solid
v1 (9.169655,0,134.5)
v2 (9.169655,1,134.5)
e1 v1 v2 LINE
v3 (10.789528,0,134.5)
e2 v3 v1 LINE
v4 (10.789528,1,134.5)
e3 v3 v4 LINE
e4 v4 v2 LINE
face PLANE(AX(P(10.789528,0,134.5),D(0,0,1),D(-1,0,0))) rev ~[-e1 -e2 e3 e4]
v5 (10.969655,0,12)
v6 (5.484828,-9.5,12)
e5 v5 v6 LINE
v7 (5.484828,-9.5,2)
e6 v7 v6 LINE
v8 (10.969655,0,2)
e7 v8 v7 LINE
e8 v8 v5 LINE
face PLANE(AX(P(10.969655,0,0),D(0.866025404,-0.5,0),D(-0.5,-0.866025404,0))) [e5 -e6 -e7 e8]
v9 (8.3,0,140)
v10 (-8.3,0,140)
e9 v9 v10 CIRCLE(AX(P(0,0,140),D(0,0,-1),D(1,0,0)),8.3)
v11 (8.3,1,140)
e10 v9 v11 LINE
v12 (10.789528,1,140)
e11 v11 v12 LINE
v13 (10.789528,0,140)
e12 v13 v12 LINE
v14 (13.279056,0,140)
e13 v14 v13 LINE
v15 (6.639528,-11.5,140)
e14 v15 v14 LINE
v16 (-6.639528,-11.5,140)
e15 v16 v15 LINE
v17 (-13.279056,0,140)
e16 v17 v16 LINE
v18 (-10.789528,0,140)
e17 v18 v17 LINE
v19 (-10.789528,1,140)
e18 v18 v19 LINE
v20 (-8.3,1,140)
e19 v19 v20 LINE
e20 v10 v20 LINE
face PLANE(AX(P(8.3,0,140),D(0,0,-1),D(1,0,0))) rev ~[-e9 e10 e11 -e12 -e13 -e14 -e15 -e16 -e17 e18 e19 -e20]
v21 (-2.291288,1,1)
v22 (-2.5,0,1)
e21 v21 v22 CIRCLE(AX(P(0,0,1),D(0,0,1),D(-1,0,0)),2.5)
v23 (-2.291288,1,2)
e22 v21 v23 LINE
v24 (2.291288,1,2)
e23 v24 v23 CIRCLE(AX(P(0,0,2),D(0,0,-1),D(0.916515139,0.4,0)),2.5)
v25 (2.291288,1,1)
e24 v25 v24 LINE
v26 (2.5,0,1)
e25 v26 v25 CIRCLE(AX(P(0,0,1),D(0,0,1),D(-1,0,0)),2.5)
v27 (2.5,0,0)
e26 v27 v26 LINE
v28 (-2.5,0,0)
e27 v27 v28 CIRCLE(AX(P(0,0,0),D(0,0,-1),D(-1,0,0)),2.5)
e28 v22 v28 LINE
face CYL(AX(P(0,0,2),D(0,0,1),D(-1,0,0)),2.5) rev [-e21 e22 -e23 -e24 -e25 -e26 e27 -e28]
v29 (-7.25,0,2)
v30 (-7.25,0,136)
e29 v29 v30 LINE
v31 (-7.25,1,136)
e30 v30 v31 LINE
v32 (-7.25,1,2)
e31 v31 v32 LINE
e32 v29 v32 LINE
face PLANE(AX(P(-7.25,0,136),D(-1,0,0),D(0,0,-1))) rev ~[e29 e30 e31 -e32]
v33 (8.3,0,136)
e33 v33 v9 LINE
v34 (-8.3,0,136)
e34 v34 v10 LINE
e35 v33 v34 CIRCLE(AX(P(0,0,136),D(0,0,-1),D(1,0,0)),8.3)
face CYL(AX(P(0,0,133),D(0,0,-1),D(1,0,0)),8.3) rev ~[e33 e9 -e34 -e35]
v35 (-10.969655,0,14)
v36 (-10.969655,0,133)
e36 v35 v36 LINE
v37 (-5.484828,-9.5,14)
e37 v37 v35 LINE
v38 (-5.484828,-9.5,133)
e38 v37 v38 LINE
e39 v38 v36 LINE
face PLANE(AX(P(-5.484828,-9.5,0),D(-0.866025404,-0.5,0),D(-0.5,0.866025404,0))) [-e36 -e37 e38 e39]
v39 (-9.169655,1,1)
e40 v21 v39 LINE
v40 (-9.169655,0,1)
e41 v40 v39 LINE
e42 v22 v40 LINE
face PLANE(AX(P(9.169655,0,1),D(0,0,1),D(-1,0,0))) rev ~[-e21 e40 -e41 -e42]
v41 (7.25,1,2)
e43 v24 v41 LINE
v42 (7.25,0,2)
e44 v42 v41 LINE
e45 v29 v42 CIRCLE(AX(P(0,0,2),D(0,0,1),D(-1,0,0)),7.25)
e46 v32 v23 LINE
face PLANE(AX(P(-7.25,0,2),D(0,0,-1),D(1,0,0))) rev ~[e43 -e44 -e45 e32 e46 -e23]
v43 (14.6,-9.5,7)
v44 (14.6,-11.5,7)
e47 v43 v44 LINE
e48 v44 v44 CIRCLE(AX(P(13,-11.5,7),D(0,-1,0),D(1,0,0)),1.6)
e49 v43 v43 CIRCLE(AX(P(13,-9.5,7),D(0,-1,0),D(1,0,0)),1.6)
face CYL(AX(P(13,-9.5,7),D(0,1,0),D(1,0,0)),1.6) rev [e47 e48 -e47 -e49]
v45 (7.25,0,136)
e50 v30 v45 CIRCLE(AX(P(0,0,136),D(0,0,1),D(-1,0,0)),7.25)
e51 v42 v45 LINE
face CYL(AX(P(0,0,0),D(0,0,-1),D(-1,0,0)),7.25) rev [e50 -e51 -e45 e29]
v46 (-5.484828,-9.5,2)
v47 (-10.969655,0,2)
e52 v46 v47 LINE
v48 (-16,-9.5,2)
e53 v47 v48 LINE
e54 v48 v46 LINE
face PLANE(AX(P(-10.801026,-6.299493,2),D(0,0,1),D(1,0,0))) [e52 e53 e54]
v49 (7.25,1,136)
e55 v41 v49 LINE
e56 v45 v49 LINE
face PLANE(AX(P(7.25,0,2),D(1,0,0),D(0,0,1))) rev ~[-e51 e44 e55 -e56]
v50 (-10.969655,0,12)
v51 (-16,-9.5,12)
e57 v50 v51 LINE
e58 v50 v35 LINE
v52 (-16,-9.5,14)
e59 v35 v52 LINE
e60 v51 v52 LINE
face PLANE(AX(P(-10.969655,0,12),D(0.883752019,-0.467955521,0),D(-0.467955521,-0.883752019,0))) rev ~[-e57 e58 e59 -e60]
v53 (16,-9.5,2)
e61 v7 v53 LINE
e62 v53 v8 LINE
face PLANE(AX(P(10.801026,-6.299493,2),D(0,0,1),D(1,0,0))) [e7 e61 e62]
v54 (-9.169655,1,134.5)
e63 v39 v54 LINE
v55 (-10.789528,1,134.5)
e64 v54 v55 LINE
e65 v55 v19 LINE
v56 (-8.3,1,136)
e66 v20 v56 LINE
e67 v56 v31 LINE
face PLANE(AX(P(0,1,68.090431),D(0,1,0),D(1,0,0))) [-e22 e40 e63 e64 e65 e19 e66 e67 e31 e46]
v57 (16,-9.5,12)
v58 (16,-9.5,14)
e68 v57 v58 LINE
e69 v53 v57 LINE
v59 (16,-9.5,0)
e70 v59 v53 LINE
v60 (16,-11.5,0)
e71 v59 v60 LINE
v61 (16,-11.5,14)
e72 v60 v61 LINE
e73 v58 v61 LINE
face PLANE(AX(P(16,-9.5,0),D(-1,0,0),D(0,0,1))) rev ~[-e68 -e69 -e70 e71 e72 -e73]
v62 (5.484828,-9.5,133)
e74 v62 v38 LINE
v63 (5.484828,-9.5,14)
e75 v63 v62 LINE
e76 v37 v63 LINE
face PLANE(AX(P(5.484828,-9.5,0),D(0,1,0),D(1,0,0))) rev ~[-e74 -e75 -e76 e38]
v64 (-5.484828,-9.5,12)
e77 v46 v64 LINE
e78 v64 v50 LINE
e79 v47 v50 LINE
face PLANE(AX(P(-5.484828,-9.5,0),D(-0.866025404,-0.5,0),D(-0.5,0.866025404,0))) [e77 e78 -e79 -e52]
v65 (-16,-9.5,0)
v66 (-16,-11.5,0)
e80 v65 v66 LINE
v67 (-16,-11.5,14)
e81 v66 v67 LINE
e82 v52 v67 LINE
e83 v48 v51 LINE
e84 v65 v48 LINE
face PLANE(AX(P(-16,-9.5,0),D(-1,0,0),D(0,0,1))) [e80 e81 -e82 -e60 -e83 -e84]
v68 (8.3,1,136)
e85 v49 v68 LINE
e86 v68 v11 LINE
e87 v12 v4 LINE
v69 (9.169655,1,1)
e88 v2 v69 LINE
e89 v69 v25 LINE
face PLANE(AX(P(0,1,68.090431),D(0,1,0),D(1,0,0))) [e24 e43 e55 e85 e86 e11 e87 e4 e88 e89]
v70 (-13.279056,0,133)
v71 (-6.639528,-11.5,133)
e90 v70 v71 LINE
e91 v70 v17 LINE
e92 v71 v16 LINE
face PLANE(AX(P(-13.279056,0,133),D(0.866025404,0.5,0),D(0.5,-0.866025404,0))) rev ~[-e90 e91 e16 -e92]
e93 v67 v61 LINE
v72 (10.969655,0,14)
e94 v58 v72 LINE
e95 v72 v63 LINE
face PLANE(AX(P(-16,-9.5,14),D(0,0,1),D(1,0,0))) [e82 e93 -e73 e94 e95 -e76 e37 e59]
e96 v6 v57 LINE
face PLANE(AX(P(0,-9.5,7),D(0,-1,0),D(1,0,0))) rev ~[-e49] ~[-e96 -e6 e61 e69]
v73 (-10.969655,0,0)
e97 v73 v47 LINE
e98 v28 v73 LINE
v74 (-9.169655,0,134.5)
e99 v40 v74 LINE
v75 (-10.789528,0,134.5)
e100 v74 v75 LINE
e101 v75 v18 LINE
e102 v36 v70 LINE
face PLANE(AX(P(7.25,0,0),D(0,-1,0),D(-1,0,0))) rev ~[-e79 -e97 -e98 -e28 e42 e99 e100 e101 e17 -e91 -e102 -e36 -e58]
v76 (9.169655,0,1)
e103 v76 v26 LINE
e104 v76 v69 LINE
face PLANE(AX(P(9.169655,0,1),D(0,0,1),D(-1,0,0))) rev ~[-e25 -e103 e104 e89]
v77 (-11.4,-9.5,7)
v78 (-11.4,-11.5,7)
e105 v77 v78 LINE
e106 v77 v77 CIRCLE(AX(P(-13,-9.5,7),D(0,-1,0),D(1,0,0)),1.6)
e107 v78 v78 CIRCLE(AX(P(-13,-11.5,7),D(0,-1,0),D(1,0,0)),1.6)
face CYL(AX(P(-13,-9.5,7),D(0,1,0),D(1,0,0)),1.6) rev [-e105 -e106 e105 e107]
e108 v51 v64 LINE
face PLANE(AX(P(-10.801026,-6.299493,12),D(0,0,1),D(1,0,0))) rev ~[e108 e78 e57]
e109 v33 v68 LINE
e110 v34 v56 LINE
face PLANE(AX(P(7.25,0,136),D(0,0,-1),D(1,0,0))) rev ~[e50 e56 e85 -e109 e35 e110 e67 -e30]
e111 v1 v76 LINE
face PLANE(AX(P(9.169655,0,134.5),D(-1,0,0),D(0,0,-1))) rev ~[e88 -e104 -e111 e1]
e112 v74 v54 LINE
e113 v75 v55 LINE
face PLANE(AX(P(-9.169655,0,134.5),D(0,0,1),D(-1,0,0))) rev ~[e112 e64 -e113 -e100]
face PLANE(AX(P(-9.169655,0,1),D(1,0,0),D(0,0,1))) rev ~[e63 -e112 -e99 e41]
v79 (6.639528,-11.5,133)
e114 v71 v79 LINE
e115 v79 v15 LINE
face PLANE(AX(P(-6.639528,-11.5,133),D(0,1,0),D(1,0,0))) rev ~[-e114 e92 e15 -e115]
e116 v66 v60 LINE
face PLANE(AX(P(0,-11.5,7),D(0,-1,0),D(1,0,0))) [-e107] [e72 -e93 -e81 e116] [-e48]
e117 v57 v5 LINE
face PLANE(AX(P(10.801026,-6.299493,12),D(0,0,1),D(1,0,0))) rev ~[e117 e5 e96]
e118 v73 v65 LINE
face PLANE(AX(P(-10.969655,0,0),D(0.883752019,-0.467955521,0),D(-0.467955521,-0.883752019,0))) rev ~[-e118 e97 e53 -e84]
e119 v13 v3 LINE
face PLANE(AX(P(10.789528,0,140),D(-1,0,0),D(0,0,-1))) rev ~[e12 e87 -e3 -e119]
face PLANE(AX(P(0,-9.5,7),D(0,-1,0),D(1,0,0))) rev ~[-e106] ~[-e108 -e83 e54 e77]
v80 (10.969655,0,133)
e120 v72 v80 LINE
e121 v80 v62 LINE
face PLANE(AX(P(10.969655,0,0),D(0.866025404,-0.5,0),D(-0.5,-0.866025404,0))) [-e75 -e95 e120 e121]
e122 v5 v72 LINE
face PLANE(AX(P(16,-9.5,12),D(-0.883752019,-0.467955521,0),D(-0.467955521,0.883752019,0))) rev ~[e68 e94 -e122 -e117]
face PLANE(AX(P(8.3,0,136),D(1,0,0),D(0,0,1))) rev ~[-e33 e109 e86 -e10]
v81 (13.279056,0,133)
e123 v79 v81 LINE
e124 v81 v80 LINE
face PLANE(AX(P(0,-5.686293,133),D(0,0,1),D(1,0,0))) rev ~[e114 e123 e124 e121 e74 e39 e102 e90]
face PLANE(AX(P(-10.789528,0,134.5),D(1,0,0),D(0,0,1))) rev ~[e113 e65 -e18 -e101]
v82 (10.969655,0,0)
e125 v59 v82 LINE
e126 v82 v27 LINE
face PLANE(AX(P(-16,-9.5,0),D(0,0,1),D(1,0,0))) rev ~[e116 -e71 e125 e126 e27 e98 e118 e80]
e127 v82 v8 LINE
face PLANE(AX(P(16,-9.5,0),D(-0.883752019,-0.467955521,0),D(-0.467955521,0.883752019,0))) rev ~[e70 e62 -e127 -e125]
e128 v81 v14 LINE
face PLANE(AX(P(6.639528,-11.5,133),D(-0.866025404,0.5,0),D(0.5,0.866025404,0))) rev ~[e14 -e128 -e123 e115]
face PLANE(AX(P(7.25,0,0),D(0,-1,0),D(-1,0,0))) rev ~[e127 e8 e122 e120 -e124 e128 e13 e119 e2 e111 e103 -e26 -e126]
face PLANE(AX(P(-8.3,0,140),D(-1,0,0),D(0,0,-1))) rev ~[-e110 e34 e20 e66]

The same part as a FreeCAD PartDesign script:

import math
import FreeCAD as App
import Part
import Sketcher
from FreeCAD import Vector
Q = App.Units.Quantity

doc = App.newDocument("Part")
body = doc.addObject("PartDesign::Body", "Body")

# Sketch on XY plane
sketch1 = body.newObject("Sketcher::SketchObject", "Sketch")
sketch1.AttachmentSupport = (doc.getObject("XY_Plane"), [""])
sketch1.MapMode = "FlatFace"
sketch1.addGeometry(Part.LineSegment(Vector(11, 0, 0), Vector(7.2, 0, 0)), False)
sketch1.addGeometry(Part.ArcOfCircle(Part.Circle(Vector(0, 0, 0), Vector(0, 0, 1), 7.2), math.radians(180), math.radians(360)), False)
sketch1.addGeometry(Part.LineSegment(Vector(-7.2, 0, 0), Vector(-11, 0, 0)), False)
sketch1.addGeometry(Part.LineSegment(Vector(-11, 0, 0), Vector(-5.5, -9.5, 0)), False)
sketch1.addGeometry(Part.LineSegment(Vector(-5.5, -9.5, 0), Vector(5.5, -9.5, 0)), False)
sketch1.addGeometry(Part.LineSegment(Vector(5.5, -9.5, 0), Vector(11, 0, 0)), False)
sketch1.addConstraint(Sketcher.Constraint("Coincident", 0, 2, 1, 2))
sketch1.addConstraint(Sketcher.Constraint("Coincident", 1, 1, 2, 1))
sketch1.addConstraint(Sketcher.Constraint("Coincident", 2, 2, 3, 1))
sketch1.addConstraint(Sketcher.Constraint("Coincident", 3, 2, 4, 1))
sketch1.addConstraint(Sketcher.Constraint("Coincident", 4, 2, 5, 1))
sketch1.addConstraint(Sketcher.Constraint("Coincident", 5, 2, 0, 1))
sketch1.addConstraint(Sketcher.Constraint("Horizontal", 0))
sketch1.addConstraint(Sketcher.Constraint("Horizontal", 2))
sketch1.addConstraint(Sketcher.Constraint("Horizontal", 4))
sketch1.addConstraint(Sketcher.Constraint("Coincident", 1, 3, -1, 1))
sketch1.addConstraint(Sketcher.Constraint("Symmetric", 2, 2, 5, 2, -1, 1))
sketch1.addConstraint(Sketcher.Constraint("PointOnObject", 0, 2, -1))
sketch1.addConstraint(Sketcher.Constraint("Equal", 3, 5))
sketch1.addConstraint(Sketcher.Constraint("Angle", 3, Q("-60 deg")))
sketch1.addConstraint(Sketcher.Constraint("Radius", 1, Q("7.25 mm")))
sketch1.addConstraint(Sketcher.Constraint("DistanceY", 3, 2, -1, 1, Q("9.5 mm")))
sketch1.addConstraint(Sketcher.Constraint("DistanceX", 0, 2, 0, 1, Q("3.719655 mm")))
pad1 = body.newObject("PartDesign::Pad", "Pad")
pad1.Profile = sketch1
pad1.Length = 136

# Sketch on XY plane
sketch2 = body.newObject("Sketcher::SketchObject", "Sketch001")
sketch2.AttachmentSupport = (doc.getObject("XY_Plane"), [""])
sketch2.MapMode = "FlatFace"
sketch2.addGeometry(Part.LineSegment(Vector(7, 0, 0), Vector(-7, 0, 0)), False)
sketch2.addGeometry(Part.ArcOfCircle(Part.Circle(Vector(0, 0, 0), Vector(0, 0, 1), 7), math.radians(180), math.radians(360)), False)
sketch2.addConstraint(Sketcher.Constraint("Coincident", 0, 1, 1, 2))
sketch2.addConstraint(Sketcher.Constraint("Coincident", 1, 1, 0, 2))
sketch2.addConstraint(Sketcher.Constraint("Horizontal", 0))
sketch2.addConstraint(Sketcher.Constraint("Coincident", 1, 3, -1, 1))
sketch2.addConstraint(Sketcher.Constraint("PointOnObject", 0, 1, -1))
sketch2.addConstraint(Sketcher.Constraint("Radius", 1, Q("7.25 mm")))
pad2 = body.newObject("PartDesign::Pad", "Pad001")
pad2.Profile = sketch2
pad2.Length = 2

# Sketch on XY plane
sketch3 = body.newObject("Sketcher::SketchObject", "Sketch002")
sketch3.AttachmentSupport = (doc.getObject("XY_Plane"), [""])
sketch3.MapMode = "FlatFace"
sketch3.AttachmentOffset = App.Placement(Vector(0, 0, 133), App.Rotation())
sketch3.addGeometry(Part.LineSegment(Vector(-8.3, 0, 0), Vector(-13.3, 0, 0)), False)
sketch3.addGeometry(Part.LineSegment(Vector(-13.3, 0, 0), Vector(-6.6, -11.5, 0)), False)
sketch3.addGeometry(Part.LineSegment(Vector(-6.6, -11.5, 0), Vector(6.6, -11.5, 0)), False)
sketch3.addGeometry(Part.LineSegment(Vector(6.6, -11.5, 0), Vector(13.3, 0, 0)), False)
sketch3.addGeometry(Part.LineSegment(Vector(13.3, 0, 0), Vector(8.3, 0, 0)), False)
sketch3.addGeometry(Part.ArcOfCircle(Part.Circle(Vector(0, 0, 0), Vector(0, 0, 1), 8.3), math.radians(180), math.radians(360)), False)
sketch3.addConstraint(Sketcher.Constraint("Coincident", 0, 2, 1, 1))
sketch3.addConstraint(Sketcher.Constraint("Coincident", 1, 2, 2, 1))
sketch3.addConstraint(Sketcher.Constraint("Coincident", 2, 2, 3, 1))
sketch3.addConstraint(Sketcher.Constraint("Coincident", 3, 2, 4, 1))
sketch3.addConstraint(Sketcher.Constraint("Coincident", 4, 2, 5, 2))
sketch3.addConstraint(Sketcher.Constraint("Coincident", 5, 1, 0, 1))
sketch3.addConstraint(Sketcher.Constraint("Horizontal", 0))
sketch3.addConstraint(Sketcher.Constraint("Horizontal", 2))
sketch3.addConstraint(Sketcher.Constraint("Horizontal", 4))
sketch3.addConstraint(Sketcher.Constraint("Coincident", 5, 3, -1, 1))
sketch3.addConstraint(Sketcher.Constraint("Symmetric", 0, 2, 3, 2, -1, 1))
sketch3.addConstraint(Sketcher.Constraint("PointOnObject", 0, 2, -1))
sketch3.addConstraint(Sketcher.Constraint("Equal", 1, 3))
sketch3.addConstraint(Sketcher.Constraint("Radius", 5, Q("8.3 mm")))
sketch3.addConstraint(Sketcher.Constraint("Angle", 1, Q("-60 deg")))
sketch3.addConstraint(Sketcher.Constraint("DistanceY", 1, 2, -1, 1, Q("11.5 mm")))
sketch3.addConstraint(Sketcher.Constraint("DistanceX", 0, 2, 0, 1, Q("4.979056 mm")))
pad3 = body.newObject("PartDesign::Pad", "Pad002")
pad3.Profile = sketch3
pad3.Length = 7

# Sketch on XY plane
sketch4 = body.newObject("Sketcher::SketchObject", "Sketch003")
sketch4.AttachmentSupport = (doc.getObject("XY_Plane"), [""])
sketch4.MapMode = "FlatFace"
sketch4.addGeometry(Part.LineSegment(Vector(11, 0, 0), Vector(5, -10, 0)), False)
sketch4.addGeometry(Part.LineSegment(Vector(5, -10, 0), Vector(16, -10, 0)), False)
sketch4.addGeometry(Part.LineSegment(Vector(16, -10, 0), Vector(11, 0, 0)), False)
sketch4.addGeometry(Part.LineSegment(Vector(-5, -10, 0), Vector(-11, 0, 0)), False)
sketch4.addGeometry(Part.LineSegment(Vector(-11, 0, 0), Vector(-16, -10, 0)), False)
sketch4.addGeometry(Part.LineSegment(Vector(-16, -10, 0), Vector(-5, -10, 0)), False)
sketch4.addConstraint(Sketcher.Constraint("Coincident", 0, 2, 1, 1))
sketch4.addConstraint(Sketcher.Constraint("Coincident", 1, 2, 2, 1))
sketch4.addConstraint(Sketcher.Constraint("Coincident", 2, 2, 0, 1))
sketch4.addConstraint(Sketcher.Constraint("Coincident", 3, 2, 4, 1))
sketch4.addConstraint(Sketcher.Constraint("Coincident", 4, 2, 5, 1))
sketch4.addConstraint(Sketcher.Constraint("Coincident", 5, 2, 3, 1))
sketch4.addConstraint(Sketcher.Constraint("Horizontal", 1))
sketch4.addConstraint(Sketcher.Constraint("Horizontal", 5))
sketch4.addConstraint(Sketcher.Constraint("Symmetric", 2, 2, 3, 2, -1, 1))
sketch4.addConstraint(Sketcher.Constraint("Symmetric", 1, 2, 4, 2, -2))
sketch4.addConstraint(Sketcher.Constraint("PointOnObject", 2, 2, -1))
sketch4.addConstraint(Sketcher.Constraint("Equal", 1, 5))
sketch4.addConstraint(Sketcher.Constraint("Angle", 0, Q("-120 deg")))
sketch4.addConstraint(Sketcher.Constraint("DistanceX", -1, 1, 1, 2, Q("16 mm")))
sketch4.addConstraint(Sketcher.Constraint("DistanceY", 0, 2, -1, 1, Q("9.5 mm")))
sketch4.addConstraint(Sketcher.Constraint("Distance", 2, Q("10.749622 mm")))
pad4 = body.newObject("PartDesign::Pad", "Pad003")
pad4.Profile = sketch4
pad4.Length = 2
doc.recompute()

linearpattern = body.newObject("PartDesign::LinearPattern", "LinearPattern")
linearpattern.Originals = [pad4]
linearpattern.Direction = (doc.getObject("Z_Axis"), [""])
linearpattern.Mode = "offset"
linearpattern.Offset = 12
linearpattern.Occurrences = 2
body.Tip = linearpattern

# Sketch on XZ plane
sketch5 = body.newObject("Sketcher::SketchObject", "Sketch004")
sketch5.AttachmentSupport = (doc.getObject("XZ_Plane"), [""])
sketch5.MapMode = "FlatFace"
sketch5.AttachmentOffset = App.Placement(Vector(0, 0, 9.5), App.Rotation())
sketch5.addGeometry(Part.LineSegment(Vector(-16, 14, 0), Vector(-16, 0, 0)), False)
sketch5.addGeometry(Part.LineSegment(Vector(-16, 0, 0), Vector(16, 0, 0)), False)
sketch5.addGeometry(Part.LineSegment(Vector(16, 0, 0), Vector(16, 14, 0)), False)
sketch5.addGeometry(Part.LineSegment(Vector(16, 14, 0), Vector(-16, 14, 0)), False)
sketch5.addGeometry(Part.Circle(Vector(-13, 7, 0), Vector(0, 0, 1), 1.6), False)
sketch5.addGeometry(Part.Circle(Vector(13, 7, 0), Vector(0, 0, 1), 1.6), False)
sketch5.addConstraint(Sketcher.Constraint("Coincident", 0, 2, 1, 1))
sketch5.addConstraint(Sketcher.Constraint("Coincident", 1, 2, 2, 1))
sketch5.addConstraint(Sketcher.Constraint("Coincident", 2, 2, 3, 1))
sketch5.addConstraint(Sketcher.Constraint("Coincident", 3, 2, 0, 1))
sketch5.addConstraint(Sketcher.Constraint("Vertical", 0))
sketch5.addConstraint(Sketcher.Constraint("Horizontal", 1))
sketch5.addConstraint(Sketcher.Constraint("Vertical", 2))
sketch5.addConstraint(Sketcher.Constraint("Horizontal", 3))
sketch5.addConstraint(Sketcher.Constraint("Equal", 4, 5))
sketch5.addConstraint(Sketcher.Constraint("Symmetric", 0, 2, 1, 2, -1, 1))
sketch5.addConstraint(Sketcher.Constraint("Symmetric", 4, 3, 5, 3, -2))
sketch5.addConstraint(Sketcher.Constraint("Diameter", 4, Q("3.2 mm")))
sketch5.addConstraint(Sketcher.Constraint("DistanceX", 1, 1, 1, 2, Q("32 mm")))
sketch5.addConstraint(Sketcher.Constraint("DistanceY", 0, 2, 0, 1, Q("14 mm")))
sketch5.addConstraint(Sketcher.Constraint("DistanceX", 4, 3, -1, 1, Q("13 mm")))
sketch5.addConstraint(Sketcher.Constraint("DistanceY", -1, 1, 4, 3, Q("7 mm")))
pad5 = body.newObject("PartDesign::Pad", "Pad004")
pad5.Profile = sketch5
pad5.Length = 2

# Sketch on XZ plane
sketch6 = body.newObject("Sketcher::SketchObject", "Sketch005")
sketch6.AttachmentSupport = (doc.getObject("XZ_Plane"), [""])
sketch6.MapMode = "FlatFace"
sketch6.addGeometry(Part.LineSegment(Vector(8.3, 140, 0), Vector(10.8, 140, 0)), False)
sketch6.addGeometry(Part.LineSegment(Vector(10.8, 140, 0), Vector(10.8, 134.5, 0)), False)
sketch6.addGeometry(Part.LineSegment(Vector(10.8, 134.5, 0), Vector(9.2, 134.5, 0)), False)
sketch6.addGeometry(Part.LineSegment(Vector(9.2, 134.5, 0), Vector(9.2, 1, 0)), False)
sketch6.addGeometry(Part.LineSegment(Vector(9.2, 1, 0), Vector(-9.2, 1, 0)), False)
sketch6.addGeometry(Part.LineSegment(Vector(-9.2, 1, 0), Vector(-9.2, 134.5, 0)), False)
sketch6.addGeometry(Part.LineSegment(Vector(-9.2, 134.5, 0), Vector(-10.8, 134.5, 0)), False)
sketch6.addGeometry(Part.LineSegment(Vector(-10.8, 134.5, 0), Vector(-10.8, 140, 0)), False)
sketch6.addGeometry(Part.LineSegment(Vector(-10.8, 140, 0), Vector(-8.3, 140, 0)), False)
sketch6.addGeometry(Part.LineSegment(Vector(-8.3, 140, 0), Vector(-8.3, 136, 0)), False)
sketch6.addGeometry(Part.LineSegment(Vector(-8.3, 136, 0), Vector(-7.2, 136, 0)), False)
sketch6.addGeometry(Part.LineSegment(Vector(-7.2, 136, 0), Vector(-7.2, 2, 0)), False)
sketch6.addGeometry(Part.LineSegment(Vector(-7.2, 2, 0), Vector(7.2, 2, 0)), False)
sketch6.addGeometry(Part.LineSegment(Vector(7.2, 2, 0), Vector(7.2, 136, 0)), False)
sketch6.addGeometry(Part.LineSegment(Vector(7.2, 136, 0), Vector(8.3, 136, 0)), False)
sketch6.addGeometry(Part.LineSegment(Vector(8.3, 136, 0), Vector(8.3, 140, 0)), False)
sketch6.addConstraint(Sketcher.Constraint("Coincident", 0, 2, 1, 1))
sketch6.addConstraint(Sketcher.Constraint("Coincident", 1, 2, 2, 1))
sketch6.addConstraint(Sketcher.Constraint("Coincident", 2, 2, 3, 1))
sketch6.addConstraint(Sketcher.Constraint("Coincident", 3, 2, 4, 1))
sketch6.addConstraint(Sketcher.Constraint("Coincident", 4, 2, 5, 1))
sketch6.addConstraint(Sketcher.Constraint("Coincident", 5, 2, 6, 1))
sketch6.addConstraint(Sketcher.Constraint("Coincident", 6, 2, 7, 1))
sketch6.addConstraint(Sketcher.Constraint("Coincident", 7, 2, 8, 1))
sketch6.addConstraint(Sketcher.Constraint("Coincident", 8, 2, 9, 1))
sketch6.addConstraint(Sketcher.Constraint("Coincident", 9, 2, 10, 1))
sketch6.addConstraint(Sketcher.Constraint("Coincident", 10, 2, 11, 1))
sketch6.addConstraint(Sketcher.Constraint("Coincident", 11, 2, 12, 1))
sketch6.addConstraint(Sketcher.Constraint("Coincident", 12, 2, 13, 1))
sketch6.addConstraint(Sketcher.Constraint("Coincident", 13, 2, 14, 1))
sketch6.addConstraint(Sketcher.Constraint("Coincident", 14, 2, 15, 1))
sketch6.addConstraint(Sketcher.Constraint("Coincident", 15, 2, 0, 1))
sketch6.addConstraint(Sketcher.Constraint("Horizontal", 0))
sketch6.addConstraint(Sketcher.Constraint("Vertical", 1))
sketch6.addConstraint(Sketcher.Constraint("Horizontal", 2))
sketch6.addConstraint(Sketcher.Constraint("Vertical", 3))
sketch6.addConstraint(Sketcher.Constraint("Horizontal", 4))
sketch6.addConstraint(Sketcher.Constraint("Vertical", 5))
sketch6.addConstraint(Sketcher.Constraint("Horizontal", 6))
sketch6.addConstraint(Sketcher.Constraint("Vertical", 7))
sketch6.addConstraint(Sketcher.Constraint("Horizontal", 8))
sketch6.addConstraint(Sketcher.Constraint("Vertical", 9))
sketch6.addConstraint(Sketcher.Constraint("Horizontal", 10))
sketch6.addConstraint(Sketcher.Constraint("Vertical", 11))
sketch6.addConstraint(Sketcher.Constraint("Horizontal", 12))
sketch6.addConstraint(Sketcher.Constraint("Vertical", 13))
sketch6.addConstraint(Sketcher.Constraint("Horizontal", 14))
sketch6.addConstraint(Sketcher.Constraint("Vertical", 15))
sketch6.addConstraint(Sketcher.Constraint("Symmetric", 2, 2, 5, 2, -2))
sketch6.addConstraint(Sketcher.Constraint("Symmetric", 0, 2, 7, 2, -2))
sketch6.addConstraint(Sketcher.Constraint("Symmetric", 10, 2, 13, 2, -2))
sketch6.addConstraint(Sketcher.Constraint("Equal", 0, 8))
sketch6.addConstraint(Sketcher.Constraint("DistanceY", 9, 2, 9, 1, Q("4 mm")))
sketch6.addConstraint(Sketcher.Constraint("DistanceY", 11, 2, 11, 1, Q("134 mm")))
sketch6.addConstraint(Sketcher.Constraint("DistanceX", 12, 1, 12, 2, Q("14.5 mm")))
sketch6.addConstraint(Sketcher.Constraint("DistanceY", 1, 2, 1, 1, Q("5.5 mm")))
sketch6.addConstraint(Sketcher.Constraint("DistanceY", 3, 2, 3, 1, Q("133.5 mm")))
sketch6.addConstraint(Sketcher.Constraint("DistanceY", -1, 1, 0, 2, Q("140 mm")))
sketch6.addConstraint(Sketcher.Constraint("DistanceX", 10, 1, 10, 2, Q("1.05 mm")))
sketch6.addConstraint(Sketcher.Constraint("DistanceX", 0, 1, 0, 2, Q("2.489528 mm")))
sketch6.addConstraint(Sketcher.Constraint("DistanceX", 4, 2, 4, 1, Q("18.33931 mm")))
pad6 = body.newObject("PartDesign::Pad", "Pad005")
pad6.Profile = sketch6
pad6.Length = 1
pad6.Reversed = True

# Sketch on XY plane
sketch7 = body.newObject("Sketcher::SketchObject", "Sketch006")
sketch7.AttachmentSupport = (doc.getObject("XY_Plane"), [""])
sketch7.MapMode = "FlatFace"
sketch7.AttachmentOffset = App.Placement(Vector(0, 0, 2), App.Rotation())
sketch7.addGeometry(Part.Circle(Vector(0, 0, 0), Vector(0, 0, 1), 2.5), False)
sketch7.addConstraint(Sketcher.Constraint("Coincident", 0, 3, -1, 1))
sketch7.addConstraint(Sketcher.Constraint("Diameter", 0, Q("5 mm")))
pocket1 = body.newObject("PartDesign::Pocket", "Pocket")
pocket1.Profile = sketch7
pocket1.Length = 2

doc.recompute()
